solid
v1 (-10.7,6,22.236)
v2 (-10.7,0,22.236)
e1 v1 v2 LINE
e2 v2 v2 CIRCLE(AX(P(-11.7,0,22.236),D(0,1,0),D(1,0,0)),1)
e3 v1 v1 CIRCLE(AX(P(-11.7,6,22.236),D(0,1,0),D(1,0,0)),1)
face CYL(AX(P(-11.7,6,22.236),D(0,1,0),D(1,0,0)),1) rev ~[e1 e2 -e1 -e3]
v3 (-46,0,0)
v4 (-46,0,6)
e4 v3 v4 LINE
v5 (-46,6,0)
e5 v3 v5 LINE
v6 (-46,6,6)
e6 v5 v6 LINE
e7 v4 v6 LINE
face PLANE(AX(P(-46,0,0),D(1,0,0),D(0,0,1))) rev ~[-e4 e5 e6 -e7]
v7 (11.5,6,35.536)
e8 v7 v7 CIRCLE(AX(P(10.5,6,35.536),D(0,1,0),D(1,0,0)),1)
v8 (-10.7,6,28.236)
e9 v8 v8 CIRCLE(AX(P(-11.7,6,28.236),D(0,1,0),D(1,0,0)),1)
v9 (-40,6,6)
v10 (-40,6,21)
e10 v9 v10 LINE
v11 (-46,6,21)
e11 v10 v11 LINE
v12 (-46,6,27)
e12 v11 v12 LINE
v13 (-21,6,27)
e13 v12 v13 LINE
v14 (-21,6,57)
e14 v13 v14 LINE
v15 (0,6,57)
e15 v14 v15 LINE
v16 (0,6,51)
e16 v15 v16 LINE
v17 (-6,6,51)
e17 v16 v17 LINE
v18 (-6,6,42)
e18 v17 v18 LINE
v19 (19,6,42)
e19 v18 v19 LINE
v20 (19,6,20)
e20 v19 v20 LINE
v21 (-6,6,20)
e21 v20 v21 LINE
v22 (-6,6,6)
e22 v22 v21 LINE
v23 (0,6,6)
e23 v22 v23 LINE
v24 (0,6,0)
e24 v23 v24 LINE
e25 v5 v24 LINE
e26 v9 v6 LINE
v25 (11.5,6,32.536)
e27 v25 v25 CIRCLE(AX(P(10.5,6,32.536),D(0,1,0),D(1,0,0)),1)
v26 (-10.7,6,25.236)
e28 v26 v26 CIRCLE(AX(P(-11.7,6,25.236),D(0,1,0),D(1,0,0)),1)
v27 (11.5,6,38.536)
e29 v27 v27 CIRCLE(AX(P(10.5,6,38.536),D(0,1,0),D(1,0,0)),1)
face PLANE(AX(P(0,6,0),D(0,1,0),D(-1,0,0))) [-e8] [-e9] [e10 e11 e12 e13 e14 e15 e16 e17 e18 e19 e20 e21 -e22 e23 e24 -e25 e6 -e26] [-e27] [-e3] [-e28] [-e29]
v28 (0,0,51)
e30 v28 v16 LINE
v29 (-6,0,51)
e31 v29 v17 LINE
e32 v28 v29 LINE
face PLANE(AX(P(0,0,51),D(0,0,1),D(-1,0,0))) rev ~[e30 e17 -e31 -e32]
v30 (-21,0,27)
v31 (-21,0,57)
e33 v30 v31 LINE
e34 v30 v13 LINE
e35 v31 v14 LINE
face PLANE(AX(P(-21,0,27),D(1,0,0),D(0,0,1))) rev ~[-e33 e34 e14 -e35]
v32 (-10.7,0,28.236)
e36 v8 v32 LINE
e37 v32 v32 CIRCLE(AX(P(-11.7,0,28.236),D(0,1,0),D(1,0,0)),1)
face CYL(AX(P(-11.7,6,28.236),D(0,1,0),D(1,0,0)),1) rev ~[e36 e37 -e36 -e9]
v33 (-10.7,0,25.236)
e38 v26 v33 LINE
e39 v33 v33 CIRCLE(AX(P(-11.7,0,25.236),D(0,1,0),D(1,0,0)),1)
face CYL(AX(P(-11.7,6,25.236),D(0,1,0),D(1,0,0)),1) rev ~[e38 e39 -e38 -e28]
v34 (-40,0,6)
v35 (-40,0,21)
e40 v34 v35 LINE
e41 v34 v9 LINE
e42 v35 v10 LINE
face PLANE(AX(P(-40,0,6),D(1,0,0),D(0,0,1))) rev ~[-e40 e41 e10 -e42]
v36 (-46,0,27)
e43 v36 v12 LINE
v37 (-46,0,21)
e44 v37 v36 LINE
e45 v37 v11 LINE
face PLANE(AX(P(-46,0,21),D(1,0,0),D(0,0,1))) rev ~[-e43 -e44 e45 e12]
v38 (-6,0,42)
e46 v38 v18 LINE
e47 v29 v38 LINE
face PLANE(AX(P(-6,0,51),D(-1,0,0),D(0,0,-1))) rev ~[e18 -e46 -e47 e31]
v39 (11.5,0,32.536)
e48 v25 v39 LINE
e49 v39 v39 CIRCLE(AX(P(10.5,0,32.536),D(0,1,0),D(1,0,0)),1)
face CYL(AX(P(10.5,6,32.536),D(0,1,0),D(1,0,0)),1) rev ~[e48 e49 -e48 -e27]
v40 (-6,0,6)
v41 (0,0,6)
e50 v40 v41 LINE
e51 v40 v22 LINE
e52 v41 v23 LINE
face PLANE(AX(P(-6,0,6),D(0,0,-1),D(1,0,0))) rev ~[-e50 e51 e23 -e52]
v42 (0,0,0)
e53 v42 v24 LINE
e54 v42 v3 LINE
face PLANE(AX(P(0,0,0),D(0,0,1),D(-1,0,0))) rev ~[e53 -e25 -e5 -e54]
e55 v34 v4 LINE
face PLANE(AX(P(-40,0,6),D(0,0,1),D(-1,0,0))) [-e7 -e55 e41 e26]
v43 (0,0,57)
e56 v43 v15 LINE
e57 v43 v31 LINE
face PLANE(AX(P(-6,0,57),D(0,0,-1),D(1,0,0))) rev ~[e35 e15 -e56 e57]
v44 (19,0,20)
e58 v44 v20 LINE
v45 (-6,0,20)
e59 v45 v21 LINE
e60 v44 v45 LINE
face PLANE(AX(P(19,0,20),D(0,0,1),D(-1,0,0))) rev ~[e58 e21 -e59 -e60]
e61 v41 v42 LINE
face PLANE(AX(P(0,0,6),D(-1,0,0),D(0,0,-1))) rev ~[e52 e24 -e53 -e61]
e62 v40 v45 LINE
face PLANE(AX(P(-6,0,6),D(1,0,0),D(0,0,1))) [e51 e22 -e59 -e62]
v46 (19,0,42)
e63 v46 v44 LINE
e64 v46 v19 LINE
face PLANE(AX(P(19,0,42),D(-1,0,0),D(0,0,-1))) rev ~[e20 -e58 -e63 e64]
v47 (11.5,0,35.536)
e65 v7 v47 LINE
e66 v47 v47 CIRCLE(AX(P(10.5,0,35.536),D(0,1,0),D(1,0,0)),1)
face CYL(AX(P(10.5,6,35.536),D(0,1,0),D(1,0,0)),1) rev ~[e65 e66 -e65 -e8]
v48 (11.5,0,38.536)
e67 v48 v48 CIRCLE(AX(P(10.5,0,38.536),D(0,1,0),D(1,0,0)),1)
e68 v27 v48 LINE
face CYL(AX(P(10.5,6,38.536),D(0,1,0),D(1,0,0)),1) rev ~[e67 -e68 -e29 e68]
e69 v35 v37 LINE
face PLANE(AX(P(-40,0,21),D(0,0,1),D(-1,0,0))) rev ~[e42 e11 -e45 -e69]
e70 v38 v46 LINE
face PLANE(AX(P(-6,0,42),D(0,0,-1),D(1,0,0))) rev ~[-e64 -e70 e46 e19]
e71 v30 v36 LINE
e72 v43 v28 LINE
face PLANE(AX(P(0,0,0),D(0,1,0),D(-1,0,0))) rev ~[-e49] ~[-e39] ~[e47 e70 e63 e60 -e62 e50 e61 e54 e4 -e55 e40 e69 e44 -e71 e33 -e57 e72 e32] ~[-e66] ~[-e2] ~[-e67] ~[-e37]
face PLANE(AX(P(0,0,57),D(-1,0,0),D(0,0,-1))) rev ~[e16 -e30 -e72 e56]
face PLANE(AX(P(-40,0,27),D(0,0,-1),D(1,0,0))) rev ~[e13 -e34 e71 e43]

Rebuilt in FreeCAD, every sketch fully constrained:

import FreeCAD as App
import Part
import Sketcher

V = App.Vector


def add_polygon(sketch, points):
    """Adds a closed chain of lines whose ends are joined by coincident constraints."""
    first, n = sketch.GeometryCount, len(points)
    for a, b in zip(points, points[1:] + points[:1]):
        sketch.addGeometry(Part.LineSegment(App.Vector(*a, 0), App.Vector(*b, 0)), False)
    for i in range(n):
        sketch.addConstraint(Sketcher.Constraint("Coincident", first + i, 2, first + (i + 1) % n, 1))

doc = App.newDocument("Part")
body = doc.addObject("PartDesign::Body", "Body")

# Sketch on XZ plane
sketch1 = body.newObject("Sketcher::SketchObject", "Sketch")
sketch1.AttachmentSupport = (doc.getObject("XZ_Plane"), [""])
sketch1.MapMode = "FlatFace"
add_polygon(sketch1, [(0, 6), (0, 0), (-46, 0), (-46, 6), (-40, 6), (-40, 21), (-46, 21), (-46, 27), (-21, 27), (-21, 57), (0, 57), (0, 51), (-6, 51), (-6, 42), (19, 42), (19, 20), (-6, 20), (-6, 6)])  # lines 0-17
sketch1.addConstraint([
    Sketcher.Constraint("Vertical", 0),
    Sketcher.Constraint("Horizontal", 1),
    Sketcher.Constraint("Vertical", 2),
    Sketcher.Constraint("Horizontal", 3),
    Sketcher.Constraint("Vertical", 4),
    Sketcher.Constraint("Horizontal", 5),
    Sketcher.Constraint("Vertical", 6),
    Sketcher.Constraint("Horizontal", 7),
    Sketcher.Constraint("Vertical", 8),
    Sketcher.Constraint("Horizontal", 9),
    Sketcher.Constraint("Vertical", 10),
    Sketcher.Constraint("Horizontal", 11),
    Sketcher.Constraint("Vertical", 12),
    Sketcher.Constraint("Horizontal", 13),
    Sketcher.Constraint("Vertical", 14),
    Sketcher.Constraint("Horizontal", 15),
    Sketcher.Constraint("Vertical", 16),
    Sketcher.Constraint("Horizontal", 17),
    Sketcher.Constraint("Coincident", 0, 2, -1, 1),
    Sketcher.Constraint("PointOnObject", 9, 2, -2),
    Sketcher.Constraint("Horizontal", 3, 2, 16, 2),
    Sketcher.Constraint("Vertical", 2, 2, 5, 2),
    Sketcher.Constraint("Vertical", 12, 2, 15, 2),
    Sketcher.Constraint("Equal", 5, 11),
    Sketcher.Constraint("Equal", 7, 13),
    Sketcher.Constraint("Equal", 17, 0),
    Sketcher.Constraint("Equal", 2, 6),
    Sketcher.Constraint("Equal", 6, 10),
    Sketcher.Constraint("DistanceX", 1, 2, 1, 1, 46.0),
    Sketcher.Constraint("DistanceX", 3, 1, 3, 2, 6.0),
    Sketcher.Constraint("DistanceX", 7, 1, 7, 2, 25.0),
    Sketcher.Constraint("DistanceY", 4, 1, 4, 2, 15.0),
    Sketcher.Constraint("DistanceY", 8, 1, 8, 2, 30.0),
    Sketcher.Constraint("DistanceY", 12, 2, 12, 1, 9.0),
    Sketcher.Constraint("DistanceY", 14, 2, 14, 1, 22.0),
])
pad1 = body.newObject("PartDesign::Pad", "Pad")
pad1.Profile = sketch1
pad1.Length = 6
pad1.Reversed = True

# Sketch on XZ plane
sketch2 = body.newObject("Sketcher::SketchObject", "Sketch001")
sketch2.AttachmentSupport = (doc.getObject("XZ_Plane"), [""])
sketch2.MapMode = "FlatFace"
sketch2.AttachmentOffset = App.Placement(V(0, 0, -6), App.Rotation())
sketch2.addGeometry([
    Part.Circle(V(10.5, 38.536, 0), V(0, 0, 1), 1),  # 0
    Part.Circle(V(10.5, 35.536, 0), V(0, 0, 1), 1),  # 1
    Part.Circle(V(10.5, 32.536, 0), V(0, 0, 1), 1),  # 2
    Part.Circle(V(-11.7, 28.236, 0), V(0, 0, 1), 1),  # 3
    Part.Circle(V(-11.7, 25.236, 0), V(0, 0, 1), 1),  # 4
    Part.Circle(V(-11.7, 22.236, 0), V(0, 0, 1), 1),  # 5
], False)
sketch2.addConstraint([
    Sketcher.Constraint("Equal", 0, 1),
    Sketcher.Constraint("Equal", 1, 2),
    Sketcher.Constraint("Equal", 2, 3),
    Sketcher.Constraint("Equal", 3, 4),
    Sketcher.Constraint("Equal", 4, 5),
    Sketcher.Constraint("Vertical", 0, 3, 1, 3),
    Sketcher.Constraint("Vertical", 1, 3, 2, 3),
    Sketcher.Constraint("Vertical", 3, 3, 4, 3),
    Sketcher.Constraint("Vertical", 4, 3, 5, 3),
    Sketcher.Constraint("Diameter", 0, 2.0),
    Sketcher.Constraint("DistanceY", 1, 3, 0, 3, 3.0),
    Sketcher.Constraint("DistanceY", 2, 3, 1, 3, 3.0),
    Sketcher.Constraint("DistanceY", 4, 3, 3, 3, 3.0),
    Sketcher.Constraint("DistanceY", 5, 3, 4, 3, 3.0),
    Sketcher.Constraint("DistanceX", 3, 3, 2, 3, 22.2),
    Sketcher.Constraint("DistanceY", 3, 3, 0, 3, 10.3),
    Sketcher.Constraint("DistanceX", -1, 1, 0, 3, 10.5),
    Sketcher.Constraint("DistanceY", -1, 1, 0, 3, 38.536),
])
pocket1 = body.newObject("PartDesign::Pocket", "Pocket")
pocket1.Profile = sketch2
pocket1.Type = "ThroughAll"
pocket1.Reversed = True

doc.recompute()
